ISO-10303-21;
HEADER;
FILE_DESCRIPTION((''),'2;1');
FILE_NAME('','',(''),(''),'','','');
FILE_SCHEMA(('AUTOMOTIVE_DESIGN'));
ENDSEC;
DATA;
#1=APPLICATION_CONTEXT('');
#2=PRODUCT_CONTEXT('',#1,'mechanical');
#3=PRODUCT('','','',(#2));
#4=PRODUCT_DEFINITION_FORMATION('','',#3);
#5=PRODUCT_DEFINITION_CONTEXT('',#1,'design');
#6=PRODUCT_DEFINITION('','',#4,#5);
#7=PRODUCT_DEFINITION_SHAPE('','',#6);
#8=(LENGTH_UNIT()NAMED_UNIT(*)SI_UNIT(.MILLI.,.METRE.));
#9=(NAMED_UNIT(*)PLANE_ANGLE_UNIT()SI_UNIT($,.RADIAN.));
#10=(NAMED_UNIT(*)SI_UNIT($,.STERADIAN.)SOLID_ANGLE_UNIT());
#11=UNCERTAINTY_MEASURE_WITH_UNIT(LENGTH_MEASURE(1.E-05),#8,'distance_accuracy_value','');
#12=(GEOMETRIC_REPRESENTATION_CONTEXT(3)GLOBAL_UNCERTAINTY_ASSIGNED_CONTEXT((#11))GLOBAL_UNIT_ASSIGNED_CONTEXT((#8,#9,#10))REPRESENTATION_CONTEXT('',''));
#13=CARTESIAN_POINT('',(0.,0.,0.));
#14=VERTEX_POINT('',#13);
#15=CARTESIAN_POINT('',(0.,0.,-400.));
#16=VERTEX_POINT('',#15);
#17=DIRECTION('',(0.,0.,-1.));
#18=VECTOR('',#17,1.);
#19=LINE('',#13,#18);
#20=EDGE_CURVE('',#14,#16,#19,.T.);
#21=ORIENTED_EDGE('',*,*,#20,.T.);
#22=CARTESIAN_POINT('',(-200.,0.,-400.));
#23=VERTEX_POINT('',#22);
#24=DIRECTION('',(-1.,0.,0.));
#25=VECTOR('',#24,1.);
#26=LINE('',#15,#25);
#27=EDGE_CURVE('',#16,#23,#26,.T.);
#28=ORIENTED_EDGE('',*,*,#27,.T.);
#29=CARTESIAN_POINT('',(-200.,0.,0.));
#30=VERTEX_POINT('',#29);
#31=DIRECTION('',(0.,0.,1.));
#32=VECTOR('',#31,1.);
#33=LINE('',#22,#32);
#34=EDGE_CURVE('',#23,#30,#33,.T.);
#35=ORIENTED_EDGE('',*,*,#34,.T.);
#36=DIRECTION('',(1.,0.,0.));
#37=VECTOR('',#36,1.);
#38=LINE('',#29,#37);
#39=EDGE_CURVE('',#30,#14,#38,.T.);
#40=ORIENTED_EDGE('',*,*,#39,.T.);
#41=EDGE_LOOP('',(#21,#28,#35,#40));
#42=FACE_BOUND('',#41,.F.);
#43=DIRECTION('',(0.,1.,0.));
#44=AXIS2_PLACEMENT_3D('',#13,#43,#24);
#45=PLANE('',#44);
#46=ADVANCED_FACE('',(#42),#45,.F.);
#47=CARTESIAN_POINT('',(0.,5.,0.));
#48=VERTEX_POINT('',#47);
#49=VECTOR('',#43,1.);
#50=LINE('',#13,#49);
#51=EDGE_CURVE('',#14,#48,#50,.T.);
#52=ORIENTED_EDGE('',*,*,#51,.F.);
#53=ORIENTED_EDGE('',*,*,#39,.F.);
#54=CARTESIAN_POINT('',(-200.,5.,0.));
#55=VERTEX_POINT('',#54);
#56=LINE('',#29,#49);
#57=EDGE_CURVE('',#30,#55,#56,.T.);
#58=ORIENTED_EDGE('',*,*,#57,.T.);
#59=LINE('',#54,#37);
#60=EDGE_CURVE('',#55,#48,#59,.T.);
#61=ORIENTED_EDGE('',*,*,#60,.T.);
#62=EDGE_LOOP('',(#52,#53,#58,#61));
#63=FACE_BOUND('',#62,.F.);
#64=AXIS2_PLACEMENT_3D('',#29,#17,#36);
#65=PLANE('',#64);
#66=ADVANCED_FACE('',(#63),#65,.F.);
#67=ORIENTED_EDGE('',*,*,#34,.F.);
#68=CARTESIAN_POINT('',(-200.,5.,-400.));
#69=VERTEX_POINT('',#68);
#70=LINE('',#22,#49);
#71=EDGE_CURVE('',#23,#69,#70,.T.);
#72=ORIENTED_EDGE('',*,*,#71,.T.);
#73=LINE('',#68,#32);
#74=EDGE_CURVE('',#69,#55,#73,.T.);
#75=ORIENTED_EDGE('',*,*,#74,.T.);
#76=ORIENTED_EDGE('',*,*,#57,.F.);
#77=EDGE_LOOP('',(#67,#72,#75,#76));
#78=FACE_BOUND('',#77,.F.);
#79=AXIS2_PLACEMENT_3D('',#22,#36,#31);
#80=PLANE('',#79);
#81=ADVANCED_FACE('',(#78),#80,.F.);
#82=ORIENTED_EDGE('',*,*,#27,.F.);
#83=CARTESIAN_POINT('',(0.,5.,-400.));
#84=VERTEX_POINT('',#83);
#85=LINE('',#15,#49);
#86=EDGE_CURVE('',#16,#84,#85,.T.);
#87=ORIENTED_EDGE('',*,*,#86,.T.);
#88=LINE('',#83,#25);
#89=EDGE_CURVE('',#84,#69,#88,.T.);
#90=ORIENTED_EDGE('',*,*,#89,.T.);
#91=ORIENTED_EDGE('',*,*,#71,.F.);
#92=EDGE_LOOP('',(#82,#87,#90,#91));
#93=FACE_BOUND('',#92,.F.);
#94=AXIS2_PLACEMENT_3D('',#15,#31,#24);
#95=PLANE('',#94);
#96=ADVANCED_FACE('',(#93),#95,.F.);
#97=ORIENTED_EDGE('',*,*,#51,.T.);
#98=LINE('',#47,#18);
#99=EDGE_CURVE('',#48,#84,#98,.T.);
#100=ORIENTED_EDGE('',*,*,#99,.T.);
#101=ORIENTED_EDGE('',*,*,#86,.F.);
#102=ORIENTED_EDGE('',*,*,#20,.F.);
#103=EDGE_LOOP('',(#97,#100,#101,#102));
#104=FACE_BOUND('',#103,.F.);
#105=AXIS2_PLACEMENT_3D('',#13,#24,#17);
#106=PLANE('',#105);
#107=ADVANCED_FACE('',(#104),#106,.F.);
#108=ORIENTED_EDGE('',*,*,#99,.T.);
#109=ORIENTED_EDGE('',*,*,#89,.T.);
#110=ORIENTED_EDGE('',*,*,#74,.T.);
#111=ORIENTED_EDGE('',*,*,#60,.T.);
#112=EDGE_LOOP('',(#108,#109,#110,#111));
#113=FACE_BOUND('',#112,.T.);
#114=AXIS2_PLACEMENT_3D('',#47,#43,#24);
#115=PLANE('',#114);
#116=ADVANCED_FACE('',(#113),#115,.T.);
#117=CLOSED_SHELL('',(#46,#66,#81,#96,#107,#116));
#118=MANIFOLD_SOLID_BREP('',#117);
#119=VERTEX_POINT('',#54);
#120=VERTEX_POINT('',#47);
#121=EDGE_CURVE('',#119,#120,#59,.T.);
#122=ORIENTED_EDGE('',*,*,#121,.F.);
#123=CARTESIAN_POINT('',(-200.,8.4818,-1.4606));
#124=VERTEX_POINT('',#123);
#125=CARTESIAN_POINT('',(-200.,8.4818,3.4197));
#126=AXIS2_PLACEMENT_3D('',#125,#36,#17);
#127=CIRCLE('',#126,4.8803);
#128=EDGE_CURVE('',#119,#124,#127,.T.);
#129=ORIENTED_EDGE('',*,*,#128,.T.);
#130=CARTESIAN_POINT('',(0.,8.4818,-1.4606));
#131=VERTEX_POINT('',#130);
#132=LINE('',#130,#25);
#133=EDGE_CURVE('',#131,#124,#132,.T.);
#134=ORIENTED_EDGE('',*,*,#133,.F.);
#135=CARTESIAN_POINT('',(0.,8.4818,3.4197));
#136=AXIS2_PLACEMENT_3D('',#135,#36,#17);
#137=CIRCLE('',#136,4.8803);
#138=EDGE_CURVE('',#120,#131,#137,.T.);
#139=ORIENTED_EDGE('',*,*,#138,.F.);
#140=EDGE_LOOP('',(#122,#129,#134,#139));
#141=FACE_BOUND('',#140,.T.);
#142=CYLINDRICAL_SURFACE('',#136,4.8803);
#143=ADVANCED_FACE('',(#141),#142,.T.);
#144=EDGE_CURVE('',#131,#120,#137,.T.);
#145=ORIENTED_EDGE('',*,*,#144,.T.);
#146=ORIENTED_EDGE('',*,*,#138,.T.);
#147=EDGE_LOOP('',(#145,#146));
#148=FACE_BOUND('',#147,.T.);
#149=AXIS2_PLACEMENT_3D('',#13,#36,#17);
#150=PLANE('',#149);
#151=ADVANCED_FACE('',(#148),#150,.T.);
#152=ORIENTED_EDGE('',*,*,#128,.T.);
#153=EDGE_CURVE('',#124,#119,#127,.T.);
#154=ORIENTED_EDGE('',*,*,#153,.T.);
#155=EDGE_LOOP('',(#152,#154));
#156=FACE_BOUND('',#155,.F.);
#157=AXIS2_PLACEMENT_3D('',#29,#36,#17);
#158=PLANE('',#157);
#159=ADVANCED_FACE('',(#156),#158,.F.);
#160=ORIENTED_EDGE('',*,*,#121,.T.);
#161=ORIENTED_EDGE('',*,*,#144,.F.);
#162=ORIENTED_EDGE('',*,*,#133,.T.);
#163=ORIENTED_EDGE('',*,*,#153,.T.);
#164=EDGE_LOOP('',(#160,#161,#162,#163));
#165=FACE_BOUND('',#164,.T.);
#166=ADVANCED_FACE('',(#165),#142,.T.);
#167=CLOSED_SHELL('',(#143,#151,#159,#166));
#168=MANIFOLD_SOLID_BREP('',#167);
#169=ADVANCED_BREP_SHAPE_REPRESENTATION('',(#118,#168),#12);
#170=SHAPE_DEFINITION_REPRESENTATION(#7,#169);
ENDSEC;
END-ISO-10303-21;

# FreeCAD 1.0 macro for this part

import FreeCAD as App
import Part
import Sketcher


def add_polygon(sketch, points):
    """Adds a closed chain of lines whose ends are joined by coincident constraints."""
    first, n = sketch.GeometryCount, len(points)
    for a, b in zip(points, points[1:] + points[:1]):
        sketch.addGeometry(Part.LineSegment(App.Vector(*a, 0), App.Vector(*b, 0)), False)
    for i in range(n):
        sketch.addConstraint(Sketcher.Constraint("Coincident", first + i, 2, first + (i + 1) % n, 1))

doc = App.newDocument("Part")
body = doc.addObject("PartDesign::Body", "Body")
body.AllowCompound = True

# Sketch on XZ plane
sketch1 = body.newObject("Sketcher::SketchObject", "Sketch")
sketch1.AttachmentSupport = (doc.getObject("XZ_Plane"), [""])
sketch1.MapMode = "FlatFace"
add_polygon(sketch1, [(-200, 0), (0, 0), (0, -400), (-200, -400)])  # lines 0-3
sketch1.addConstraint(Sketcher.Constraint("Horizontal", 0))
sketch1.addConstraint(Sketcher.Constraint("Vertical", 1))
sketch1.addConstraint(Sketcher.Constraint("Horizontal", 2))
sketch1.addConstraint(Sketcher.Constraint("Vertical", 3))
sketch1.addConstraint(Sketcher.Constraint("Coincident", 0, 2, -1, 1))
sketch1.addConstraint(Sketcher.Constraint("DistanceX", 0, 1, 0, 2, 200.0))
sketch1.addConstraint(Sketcher.Constraint("DistanceY", 1, 2, 1, 1, 400.0))
pad1 = body.newObject("PartDesign::Pad", "Pad")
pad1.Profile = sketch1
pad1.Length = 5
pad1.Reversed = True

# Sketch on YZ plane
sketch2 = body.newObject("Sketcher::SketchObject", "Sketch001")
sketch2.AttachmentSupport = (doc.getObject("YZ_Plane"), [""])
sketch2.MapMode = "FlatFace"
sketch2.addGeometry(Part.Circle(App.Vector(8.5, 3.4, 0), App.Vector(0, 0, 1), 4.9), False)
sketch2.addConstraint(Sketcher.Constraint("Diameter", 0, 9.7606))
sketch2.addConstraint(Sketcher.Constraint("DistanceX", -1, 1, 0, 3, 8.4818))
sketch2.addConstraint(Sketcher.Constraint("DistanceY", -1, 1, 0, 3, 3.4197))
pad2 = body.newObject("PartDesign::Pad", "Pad001")
pad2.Profile = sketch2
pad2.Length = 200
pad2.Reversed = True

doc.recompute()
